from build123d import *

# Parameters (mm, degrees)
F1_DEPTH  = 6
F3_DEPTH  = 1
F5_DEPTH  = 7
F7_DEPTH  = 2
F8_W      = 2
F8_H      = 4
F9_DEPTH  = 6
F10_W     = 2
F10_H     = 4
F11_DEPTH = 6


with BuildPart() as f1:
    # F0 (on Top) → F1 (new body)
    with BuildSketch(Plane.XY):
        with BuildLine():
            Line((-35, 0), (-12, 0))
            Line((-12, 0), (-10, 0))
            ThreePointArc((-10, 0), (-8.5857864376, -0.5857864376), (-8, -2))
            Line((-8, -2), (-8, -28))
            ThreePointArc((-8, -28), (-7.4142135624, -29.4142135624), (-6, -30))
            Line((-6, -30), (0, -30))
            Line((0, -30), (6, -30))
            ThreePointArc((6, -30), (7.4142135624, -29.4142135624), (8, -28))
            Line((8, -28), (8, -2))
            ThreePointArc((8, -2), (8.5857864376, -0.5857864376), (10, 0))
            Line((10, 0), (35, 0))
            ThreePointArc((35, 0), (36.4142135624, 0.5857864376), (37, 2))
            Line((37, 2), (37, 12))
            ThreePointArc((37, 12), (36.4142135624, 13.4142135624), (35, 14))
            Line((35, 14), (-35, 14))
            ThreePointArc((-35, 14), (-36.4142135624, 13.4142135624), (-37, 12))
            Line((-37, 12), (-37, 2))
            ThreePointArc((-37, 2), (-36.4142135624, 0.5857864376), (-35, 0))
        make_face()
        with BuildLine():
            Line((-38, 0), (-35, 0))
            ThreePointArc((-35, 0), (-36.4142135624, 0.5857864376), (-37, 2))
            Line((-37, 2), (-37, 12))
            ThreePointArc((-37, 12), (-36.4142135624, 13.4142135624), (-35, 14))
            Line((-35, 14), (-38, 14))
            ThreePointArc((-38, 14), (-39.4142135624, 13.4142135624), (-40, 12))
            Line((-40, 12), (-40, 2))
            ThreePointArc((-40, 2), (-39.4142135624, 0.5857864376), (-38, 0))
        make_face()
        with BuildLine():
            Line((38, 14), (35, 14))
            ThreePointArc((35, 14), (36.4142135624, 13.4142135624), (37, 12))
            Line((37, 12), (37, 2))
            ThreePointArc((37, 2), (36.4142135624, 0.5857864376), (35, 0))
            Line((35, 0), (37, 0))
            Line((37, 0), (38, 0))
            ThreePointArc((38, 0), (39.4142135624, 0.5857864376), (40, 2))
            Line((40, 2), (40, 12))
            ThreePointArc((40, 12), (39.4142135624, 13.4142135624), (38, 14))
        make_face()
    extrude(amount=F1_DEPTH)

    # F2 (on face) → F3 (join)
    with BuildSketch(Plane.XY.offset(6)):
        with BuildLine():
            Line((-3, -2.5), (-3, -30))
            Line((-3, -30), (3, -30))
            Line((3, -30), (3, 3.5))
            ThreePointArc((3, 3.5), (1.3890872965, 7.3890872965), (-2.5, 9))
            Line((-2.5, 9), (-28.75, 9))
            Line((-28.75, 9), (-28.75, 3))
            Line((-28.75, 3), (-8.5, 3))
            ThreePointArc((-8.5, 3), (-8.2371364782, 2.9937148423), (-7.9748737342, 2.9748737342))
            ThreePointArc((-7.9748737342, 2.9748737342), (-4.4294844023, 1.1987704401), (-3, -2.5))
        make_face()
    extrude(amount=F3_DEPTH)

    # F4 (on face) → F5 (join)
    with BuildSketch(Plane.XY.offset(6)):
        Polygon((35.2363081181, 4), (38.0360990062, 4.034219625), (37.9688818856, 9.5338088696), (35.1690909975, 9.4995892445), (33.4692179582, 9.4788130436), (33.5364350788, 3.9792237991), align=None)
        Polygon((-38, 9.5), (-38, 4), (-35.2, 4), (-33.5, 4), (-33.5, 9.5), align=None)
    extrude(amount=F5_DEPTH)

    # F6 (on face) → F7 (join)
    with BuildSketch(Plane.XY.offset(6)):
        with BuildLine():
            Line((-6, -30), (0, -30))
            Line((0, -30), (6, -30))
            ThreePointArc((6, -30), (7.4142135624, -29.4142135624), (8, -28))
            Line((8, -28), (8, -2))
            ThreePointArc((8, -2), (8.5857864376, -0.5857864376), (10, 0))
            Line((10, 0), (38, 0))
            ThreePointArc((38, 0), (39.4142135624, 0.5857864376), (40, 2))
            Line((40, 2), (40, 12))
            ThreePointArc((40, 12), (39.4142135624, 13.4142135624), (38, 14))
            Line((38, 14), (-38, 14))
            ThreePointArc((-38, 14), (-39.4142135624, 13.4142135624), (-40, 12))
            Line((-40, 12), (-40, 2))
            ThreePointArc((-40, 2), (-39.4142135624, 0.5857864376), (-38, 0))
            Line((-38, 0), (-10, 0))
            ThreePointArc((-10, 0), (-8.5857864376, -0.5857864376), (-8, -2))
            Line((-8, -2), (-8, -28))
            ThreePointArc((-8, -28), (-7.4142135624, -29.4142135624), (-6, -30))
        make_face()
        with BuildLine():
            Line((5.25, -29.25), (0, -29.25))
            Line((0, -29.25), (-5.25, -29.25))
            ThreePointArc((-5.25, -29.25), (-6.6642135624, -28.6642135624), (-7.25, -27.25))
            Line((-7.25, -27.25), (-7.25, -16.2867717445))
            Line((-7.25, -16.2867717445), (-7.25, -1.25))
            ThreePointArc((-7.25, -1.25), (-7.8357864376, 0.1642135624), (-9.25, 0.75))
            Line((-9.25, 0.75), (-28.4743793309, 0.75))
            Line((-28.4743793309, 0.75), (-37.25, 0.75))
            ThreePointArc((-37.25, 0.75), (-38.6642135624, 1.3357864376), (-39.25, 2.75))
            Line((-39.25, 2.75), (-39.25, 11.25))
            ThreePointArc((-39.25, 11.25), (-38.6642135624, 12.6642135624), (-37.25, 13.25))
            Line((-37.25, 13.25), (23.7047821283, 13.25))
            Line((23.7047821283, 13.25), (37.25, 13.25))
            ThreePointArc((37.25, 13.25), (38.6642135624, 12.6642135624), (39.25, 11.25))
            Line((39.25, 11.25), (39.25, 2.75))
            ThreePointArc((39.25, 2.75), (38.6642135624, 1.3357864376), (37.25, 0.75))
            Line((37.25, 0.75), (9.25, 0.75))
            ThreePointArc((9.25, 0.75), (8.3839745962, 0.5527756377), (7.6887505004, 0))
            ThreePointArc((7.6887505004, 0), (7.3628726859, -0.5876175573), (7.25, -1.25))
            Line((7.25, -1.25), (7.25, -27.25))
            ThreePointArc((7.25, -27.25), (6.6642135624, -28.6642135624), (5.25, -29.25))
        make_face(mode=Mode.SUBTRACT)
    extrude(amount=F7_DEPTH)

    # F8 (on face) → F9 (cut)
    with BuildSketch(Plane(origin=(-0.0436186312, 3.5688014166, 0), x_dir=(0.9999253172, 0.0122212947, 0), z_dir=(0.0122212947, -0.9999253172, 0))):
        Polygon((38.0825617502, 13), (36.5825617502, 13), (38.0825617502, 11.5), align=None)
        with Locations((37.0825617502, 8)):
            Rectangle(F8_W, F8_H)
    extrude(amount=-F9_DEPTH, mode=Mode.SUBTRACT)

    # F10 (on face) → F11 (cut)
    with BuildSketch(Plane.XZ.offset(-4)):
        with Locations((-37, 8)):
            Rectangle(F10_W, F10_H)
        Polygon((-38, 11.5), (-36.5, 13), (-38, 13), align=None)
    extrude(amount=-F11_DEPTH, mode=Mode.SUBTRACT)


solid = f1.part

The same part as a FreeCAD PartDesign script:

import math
import FreeCAD as App
import Part
import Sketcher
Q = App.Units.Quantity


def add_polygon(sketch, points):
    """Adds a closed chain of lines whose ends are joined by coincident constraints."""
    first, n = sketch.GeometryCount, len(points)
    for a, b in zip(points, points[1:] + points[:1]):
        sketch.addGeometry(Part.LineSegment(App.Vector(*a, 0), App.Vector(*b, 0)), False)
    for i in range(n):
        sketch.addConstraint(Sketcher.Constraint("Coincident", first + i, 2, first + (i + 1) % n, 1))

doc = App.newDocument("Part")
body = doc.addObject("PartDesign::Body", "Body")

sketch1 = doc.addObject("Sketcher::SketchObject", "Sketch")
body.addObject(sketch1)
sketch1.AttachmentSupport = (doc.XY_Plane, [""])
sketch1.MapMode = "FlatFace"
sketch1.addGeometry([
    Part.ArcOfCircle(Part.Circle(App.Vector(-10, -2, 0), App.Vector(0, 0, 1), 2), math.radians(0), math.radians(90)),
    Part.LineSegment(App.Vector(-8, -2, 0), App.Vector(-8, -28, 0)),
    Part.ArcOfCircle(Part.Circle(App.Vector(-6, -28, 0), App.Vector(0, 0, 1), 2), math.radians(180), math.radians(270)),
    Part.LineSegment(App.Vector(-6, -30, 0), App.Vector(6, -30, 0)),
    Part.ArcOfCircle(Part.Circle(App.Vector(6, -28, 0), App.Vector(0, 0, 1), 2), math.radians(-90), math.radians(0)),
    Part.LineSegment(App.Vector(8, -28, 0), App.Vector(8, -2, 0)),
    Part.ArcOfCircle(Part.Circle(App.Vector(10, -2, 0), App.Vector(0, 0, 1), 2), math.radians(90), math.radians(180)),
    Part.LineSegment(App.Vector(10, 0, 0), App.Vector(38, 0, 0)),
    Part.ArcOfCircle(Part.Circle(App.Vector(38, 2, 0), App.Vector(0, 0, 1), 2), math.radians(-90), math.radians(0)),
    Part.LineSegment(App.Vector(40, 2, 0), App.Vector(40, 12, 0)),
    Part.ArcOfCircle(Part.Circle(App.Vector(38, 12, 0), App.Vector(0, 0, 1), 2), math.radians(0), math.radians(90)),
    Part.LineSegment(App.Vector(38, 14, 0), App.Vector(-38, 14, 0)),
    Part.ArcOfCircle(Part.Circle(App.Vector(-38, 12, 0), App.Vector(0, 0, 1), 2), math.radians(90), math.radians(180)),
    Part.LineSegment(App.Vector(-40, 12, 0), App.Vector(-40, 2, 0)),
    Part.ArcOfCircle(Part.Circle(App.Vector(-38, 2, 0), App.Vector(0, 0, 1), 2), math.radians(180), math.radians(270)),
    Part.LineSegment(App.Vector(-38, 0, 0), App.Vector(-10, 0, 0)),
], False)
sketch1.addConstraint([
    Sketcher.Constraint("Tangent", 0, 1, 1, 1),
    Sketcher.Constraint("Tangent", 1, 2, 2, 1),
    Sketcher.Constraint("Tangent", 2, 2, 3, 1),
    Sketcher.Constraint("Tangent", 3, 2, 4, 1),
    Sketcher.Constraint("Tangent", 4, 2, 5, 1),
    Sketcher.Constraint("Tangent", 5, 2, 6, 2),
    Sketcher.Constraint("Tangent", 6, 1, 7, 1),
    Sketcher.Constraint("Tangent", 7, 2, 8, 1),
    Sketcher.Constraint("Tangent", 8, 2, 9, 1),
    Sketcher.Constraint("Tangent", 9, 2, 10, 1),
    Sketcher.Constraint("Tangent", 10, 2, 11, 1),
    Sketcher.Constraint("Tangent", 11, 2, 12, 1),
    Sketcher.Constraint("Tangent", 12, 2, 13, 1),
    Sketcher.Constraint("Tangent", 13, 2, 14, 1),
    Sketcher.Constraint("Tangent", 14, 2, 15, 1),
    Sketcher.Constraint("Tangent", 15, 2, 0, 2),
    Sketcher.Constraint("Vertical", 1),
    Sketcher.Constraint("Horizontal", 3),
    Sketcher.Constraint("Vertical", 5),
    Sketcher.Constraint("Horizontal", 7),
    Sketcher.Constraint("Vertical", 9),
    Sketcher.Constraint("Horizontal", 11),
    Sketcher.Constraint("Vertical", 13),
    Sketcher.Constraint("Horizontal", 15),
    Sketcher.Constraint("Equal", 0, 2),
    Sketcher.Constraint("Equal", 2, 4),
    Sketcher.Constraint("Equal", 4, 6),
    Sketcher.Constraint("Equal", 6, 8),
    Sketcher.Constraint("Equal", 8, 10),
    Sketcher.Constraint("Equal", 10, 12),
    Sketcher.Constraint("Equal", 12, 14),
    Sketcher.Constraint("Symmetric", 7, 2, 14, 2, -1, 1),
    Sketcher.Constraint("Symmetric", 0, 3, 6, 3, -2),
    Sketcher.Constraint("Radius", 0, Q("2 mm")),
    Sketcher.Constraint("DistanceX", 3, 1, 3, 2, Q("12 mm")),
    Sketcher.Constraint("DistanceX", 7, 1, 7, 2, Q("28 mm")),
    Sketcher.Constraint("DistanceY", 1, 2, 1, 1, Q("26 mm")),
    Sketcher.Constraint("DistanceY", 9, 1, 9, 2, Q("10 mm")),
])
pad1 = doc.addObject("PartDesign::Pad", "Pad")
body.addObject(pad1)
pad1.Profile = sketch1
pad1.Length = 6

sketch2 = doc.addObject("Sketcher::SketchObject", "Sketch001")
body.addObject(sketch2)
sketch2.AttachmentSupport = (doc.XY_Plane, [""])
sketch2.MapMode = "FlatFace"
sketch2.AttachmentOffset = App.Placement(App.Vector(0, 0, 6), App.Rotation())
sketch2.addGeometry([
    Part.LineSegment(App.Vector(-3, -2.5, 0), App.Vector(-3, -30, 0)),
    Part.LineSegment(App.Vector(-3, -30, 0), App.Vector(3, -30, 0)),
    Part.LineSegment(App.Vector(3, -30, 0), App.Vector(3, 3.5, 0)),
    Part.ArcOfCircle(Part.Circle(App.Vector(-2.5, 3.5, 0), App.Vector(0, 0, 1), 5.5), math.radians(0), math.radians(90)),
    Part.LineSegment(App.Vector(-2.5, 9, 0), App.Vector(-28.75, 9, 0)),
    Part.LineSegment(App.Vector(-28.75, 9, 0), App.Vector(-28.75, 3, 0)),
    Part.LineSegment(App.Vector(-28.75, 3, 0), App.Vector(-8.5, 3, 0)),
    Part.ArcOfCircle(Part.Circle(App.Vector(-8.5, -2.5, 0), App.Vector(0, 0, 1), 5.5), math.radians(84.521196), math.radians(90)),
    Part.ArcOfCircle(Part.Circle(App.Vector(-8.5, -2.5, 0), App.Vector(0, 0, 1), 5.5), math.radians(0), math.radians(84.521196)),
], False)
sketch2.addConstraint([
    Sketcher.Constraint("Coincident", 0, 2, 1, 1),
    Sketcher.Constraint("Coincident", 1, 2, 2, 1),
    Sketcher.Constraint("Tangent", 2, 2, 3, 1),
    Sketcher.Constraint("Tangent", 3, 2, 4, 1),
    Sketcher.Constraint("Coincident", 4, 2, 5, 1),
    Sketcher.Constraint("Coincident", 5, 2, 6, 1),
    Sketcher.Constraint("Tangent", 6, 2, 7, 2),
    Sketcher.Constraint("Tangent", 7, 1, 8, 2),
    Sketcher.Constraint("Tangent", 8, 1, 0, 1),
    Sketcher.Constraint("Vertical", 0),
    Sketcher.Constraint("Horizontal", 1),
    Sketcher.Constraint("Vertical", 2),
    Sketcher.Constraint("Horizontal", 4),
    Sketcher.Constraint("Vertical", 5),
    Sketcher.Constraint("Horizontal", 6),
    Sketcher.Constraint("Equal", 3, 7),
    Sketcher.Constraint("Equal", 7, 8),
    Sketcher.Constraint("Equal", 1, 5),
    Sketcher.Constraint("Radius", 3, Q("5.5 mm")),
    Sketcher.Constraint("DistanceX", 1, 1, 1, 2, Q("6 mm")),
    Sketcher.Constraint("DistanceY", 0, 2, 0, 1, Q("27.5 mm")),
    Sketcher.Constraint("DistanceX", 0, 2, -1, 1, Q("3 mm")),
    Sketcher.Constraint("DistanceY", 0, 2, -1, 1, Q("30 mm")),
    Sketcher.Constraint("DistanceX", 4, 2, 4, 1, Q("26.25 mm")),
    Sketcher.Constraint("DistanceX", 7, 1, -1, 1, Q("7.974874 mm")),
])
pad2 = doc.addObject("PartDesign::Pad", "Pad001")
body.addObject(pad2)
pad2.Profile = sketch2
pad2.Length = 1

sketch3 = doc.addObject("Sketcher::SketchObject", "Sketch002")
body.addObject(sketch3)
sketch3.AttachmentSupport = (doc.XY_Plane, [""])
sketch3.MapMode = "FlatFace"
sketch3.AttachmentOffset = App.Placement(App.Vector(0, 0, 6), App.Rotation())
add_polygon(sketch3, [(35.236308, 4), (38.036099, 4.03422), (37.968882, 9.533809), (35.169091, 9.499589), (33.469218, 9.478813), (33.536435, 3.979224)])
add_polygon(sketch3, [(-38, 9.5), (-38, 4), (-33.5, 4), (-33.5, 9.5)])
sketch3.addConstraint([
    Sketcher.Constraint("Vertical", 6),
    Sketcher.Constraint("Horizontal", 7),
    Sketcher.Constraint("Vertical", 8),
    Sketcher.Constraint("Horizontal", 9),
    Sketcher.Constraint("Perpendicular", 0, 1),
    Sketcher.Constraint("Perpendicular", 1, 2),
    Sketcher.Constraint("Parallel", 2, 3),
    Sketcher.Constraint("Perpendicular", 3, 4),
    Sketcher.Constraint("Perpendicular", 4, 5),
    Sketcher.Constraint("Horizontal", 5, 2, 6, 2),
    Sketcher.Constraint("Equal", 0, 2),
    Sketcher.Constraint("DistanceX", 7, 1, 7, 2, Q("4.5 mm")),
    Sketcher.Constraint("DistanceY", 6, 2, 6, 1, Q("5.5 mm")),
    Sketcher.Constraint("DistanceY", -1, 1, 5, 2, Q("4 mm")),
    Sketcher.Constraint("DistanceX", 6, 2, -1, 1, Q("38 mm")),
    Sketcher.Constraint("Distance", 0, Q("2.8 mm")),
    Sketcher.Constraint("Distance", 1, Q("5.5 mm")),
    Sketcher.Constraint("Distance", 3, Q("1.7 mm")),
    Sketcher.Constraint("DistanceX", -1, 1, 0, 2, Q("38.036099 mm")),
    Sketcher.Constraint("DistanceY", -1, 1, 0, 2, Q("4.03422 mm")),
])
pad3 = doc.addObject("PartDesign::Pad", "Pad002")
body.addObject(pad3)
pad3.Profile = sketch3
pad3.Length = 7

sketch4 = doc.addObject("Sketcher::SketchObject", "Sketch003")
body.addObject(sketch4)
sketch4.AttachmentSupport = (doc.XY_Plane, [""])
sketch4.MapMode = "FlatFace"
sketch4.AttachmentOffset = App.Placement(App.Vector(0, 0, 6), App.Rotation())
sketch4.addGeometry([
    Part.LineSegment(App.Vector(-6, -30, 0), App.Vector(6, -30, 0)),
    Part.ArcOfCircle(Part.Circle(App.Vector(6, -28, 0), App.Vector(0, 0, 1), 2), math.radians(-90), math.radians(0)),
    Part.LineSegment(App.Vector(8, -28, 0), App.Vector(8, -2, 0)),
    Part.ArcOfCircle(Part.Circle(App.Vector(10, -2, 0), App.Vector(0, 0, 1), 2), math.radians(90), math.radians(180)),
    Part.LineSegment(App.Vector(10, 0, 0), App.Vector(38, 0, 0)),
    Part.ArcOfCircle(Part.Circle(App.Vector(38, 2, 0), App.Vector(0, 0, 1), 2), math.radians(-90), math.radians(0)),
    Part.LineSegment(App.Vector(40, 2, 0), App.Vector(40, 12, 0)),
    Part.ArcOfCircle(Part.Circle(App.Vector(38, 12, 0), App.Vector(0, 0, 1), 2), math.radians(0), math.radians(90)),
    Part.LineSegment(App.Vector(38, 14, 0), App.Vector(-38, 14, 0)),
    Part.ArcOfCircle(Part.Circle(App.Vector(-38, 12, 0), App.Vector(0, 0, 1), 2), math.radians(90), math.radians(180)),
    Part.LineSegment(App.Vector(-40, 12, 0), App.Vector(-40, 2, 0)),
    Part.ArcOfCircle(Part.Circle(App.Vector(-38, 2, 0), App.Vector(0, 0, 1), 2), math.radians(180), math.radians(270)),
    Part.LineSegment(App.Vector(-38, 0, 0), App.Vector(-10, 0, 0)),
    Part.ArcOfCircle(Part.Circle(App.Vector(-10, -2, 0), App.Vector(0, 0, 1), 2), math.radians(0), math.radians(90)),
    Part.LineSegment(App.Vector(-8, -2, 0), App.Vector(-8, -28, 0)),
    Part.ArcOfCircle(Part.Circle(App.Vector(-6, -28, 0), App.Vector(0, 0, 1), 2), math.radians(180), math.radians(270)),
    Part.ArcOfCircle(Part.Circle(App.Vector(5.25, -27.25, 0), App.Vector(0, 0, 1), 2), math.radians(-90), math.radians(0)),
    Part.LineSegment(App.Vector(5.25, -29.25, 0), App.Vector(-5.25, -29.25, 0)),
    Part.ArcOfCircle(Part.Circle(App.Vector(-5.25, -27.25, 0), App.Vector(0, 0, 1), 2), math.radians(180), math.radians(270)),
    Part.LineSegment(App.Vector(-7.25, -27.25, 0), App.Vector(-7.25, -1.25, 0)),
    Part.ArcOfCircle(Part.Circle(App.Vector(-9.25, -1.25, 0), App.Vector(0, 0, 1), 2), math.radians(0), math.radians(90)),
    Part.LineSegment(App.Vector(-9.25, 0.75, 0), App.Vector(-37.25, 0.75, 0)),
    Part.ArcOfCircle(Part.Circle(App.Vector(-37.25, 2.75, 0), App.Vector(0, 0, 1), 2), math.radians(180), math.radians(270)),
    Part.LineSegment(App.Vector(-39.25, 2.75, 0), App.Vector(-39.25, 11.25, 0)),
    Part.ArcOfCircle(Part.Circle(App.Vector(-37.25, 11.25, 0), App.Vector(0, 0, 1), 2), math.radians(90), math.radians(180)),
    Part.LineSegment(App.Vector(-37.25, 13.25, 0), App.Vector(37.25, 13.25, 0)),
    Part.ArcOfCircle(Part.Circle(App.Vector(37.25, 11.25, 0), App.Vector(0, 0, 1), 2), math.radians(0), math.radians(90)),
    Part.LineSegment(App.Vector(39.25, 11.25, 0), App.Vector(39.25, 2.75, 0)),
    Part.ArcOfCircle(Part.Circle(App.Vector(37.25, 2.75, 0), App.Vector(0, 0, 1), 2), math.radians(-90), math.radians(0)),
    Part.LineSegment(App.Vector(37.25, 0.75, 0), App.Vector(9.25, 0.75, 0)),
    Part.ArcOfCircle(Part.Circle(App.Vector(9.25, -1.25, 0), App.Vector(0, 0, 1), 2), math.radians(90), math.radians(141.317813)),
    Part.ArcOfCircle(Part.Circle(App.Vector(9.25, -1.25, 0), App.Vector(0, 0, 1), 2), math.radians(141.317813), math.radians(180)),
    Part.LineSegment(App.Vector(7.25, -1.25, 0), App.Vector(7.25, -27.25, 0)),
], False)
sketch4.addConstraint([
    Sketcher.Constraint("Tangent", 0, 2, 1, 1),
    Sketcher.Constraint("Tangent", 1, 2, 2, 1),
    Sketcher.Constraint("Tangent", 2, 2, 3, 2),
    Sketcher.Constraint("Tangent", 3, 1, 4, 1),
    Sketcher.Constraint("Tangent", 4, 2, 5, 1),
    Sketcher.Constraint("Tangent", 5, 2, 6, 1),
    Sketcher.Constraint("Tangent", 6, 2, 7, 1),
    Sketcher.Constraint("Tangent", 7, 2, 8, 1),
    Sketcher.Constraint("Tangent", 8, 2, 9, 1),
    Sketcher.Constraint("Tangent", 9, 2, 10, 1),
    Sketcher.Constraint("Tangent", 10, 2, 11, 1),
    Sketcher.Constraint("Tangent", 11, 2, 12, 1),
    Sketcher.Constraint("Tangent", 12, 2, 13, 2),
    Sketcher.Constraint("Tangent", 13, 1, 14, 1),
    Sketcher.Constraint("Tangent", 14, 2, 15, 1),
    Sketcher.Constraint("Tangent", 15, 2, 0, 1),
    Sketcher.Constraint("Tangent", 16, 1, 17, 1),
    Sketcher.Constraint("Tangent", 17, 2, 18, 2),
    Sketcher.Constraint("Tangent", 18, 1, 19, 1),
    Sketcher.Constraint("Tangent", 19, 2, 20, 1),
    Sketcher.Constraint("Tangent", 20, 2, 21, 1),
    Sketcher.Constraint("Tangent", 21, 2, 22, 2),
    Sketcher.Constraint("Tangent", 22, 1, 23, 1),
    Sketcher.Constraint("Tangent", 23, 2, 24, 2),
    Sketcher.Constraint("Tangent", 24, 1, 25, 1),
    Sketcher.Constraint("Tangent", 25, 2, 26, 2),
    Sketcher.Constraint("Tangent", 26, 1, 27, 1),
    Sketcher.Constraint("Tangent", 27, 2, 28, 2),
    Sketcher.Constraint("Tangent", 28, 1, 29, 1),
    Sketcher.Constraint("Tangent", 29, 2, 30, 1),
    Sketcher.Constraint("Tangent", 30, 2, 31, 1),
    Sketcher.Constraint("Tangent", 31, 2, 32, 1),
    Sketcher.Constraint("Tangent", 32, 2, 16, 2),
    Sketcher.Constraint("Horizontal", 0),
    Sketcher.Constraint("Vertical", 2),
    Sketcher.Constraint("Horizontal", 4),
    Sketcher.Constraint("Vertical", 6),
    Sketcher.Constraint("Horizontal", 8),
    Sketcher.Constraint("Vertical", 10),
    Sketcher.Constraint("Horizontal", 12),
    Sketcher.Constraint("Vertical", 14),
    Sketcher.Constraint("Horizontal", 17),
    Sketcher.Constraint("Vertical", 19),
    Sketcher.Constraint("Horizontal", 21),
    Sketcher.Constraint("Vertical", 23),
    Sketcher.Constraint("Horizontal", 25),
    Sketcher.Constraint("Vertical", 27),
    Sketcher.Constraint("Horizontal", 29),
    Sketcher.Constraint("Vertical", 32),
    Sketcher.Constraint("Equal", 1, 3),
    Sketcher.Constraint("Equal", 3, 5),
    Sketcher.Constraint("Equal", 5, 7),
    Sketcher.Constraint("Equal", 7, 9),
    Sketcher.Constraint("Equal", 9, 11),
    Sketcher.Constraint("Equal", 11, 13),
    Sketcher.Constraint("Equal", 13, 15),
    Sketcher.Constraint("Equal", 15, 16),
    Sketcher.Constraint("Equal", 16, 18),
    Sketcher.Constraint("Equal", 18, 20),
    Sketcher.Constraint("Equal", 20, 22),
    Sketcher.Constraint("Equal", 22, 24),
    Sketcher.Constraint("Equal", 24, 26),
    Sketcher.Constraint("Equal", 26, 28),
    Sketcher.Constraint("Equal", 28, 30),
    Sketcher.Constraint("Equal", 30, 31),
    Sketcher.Constraint("Symmetric", 4, 2, 11, 2, -1, 1),
    Sketcher.Constraint("Symmetric", 3, 3, 13, 3, -2),
    Sketcher.Constraint("Symmetric", 22, 3, 28, 3, -2),
    Sketcher.Constraint("PointOnObject", 30, 2, -1),
    Sketcher.Constraint("Equal", 12, 21),
    Sketcher.Constraint("Equal", 21, 29),
    Sketcher.Constraint("Equal", 14, 19),
    Sketcher.Constraint("Radius", 1, Q("2 mm")),
    Sketcher.Constraint("DistanceX", 0, 1, 0, 2, Q("12 mm")),
    Sketcher.Constraint("DistanceX", 4, 1, 4, 2, Q("28 mm")),
    Sketcher.Constraint("DistanceY", 2, 1, 2, 2, Q("26 mm")),
    Sketcher.Constraint("DistanceY", 6, 1, 6, 2, Q("10 mm")),
    Sketcher.Constraint("DistanceX", 17, 2, 17, 1, Q("10.5 mm")),
    Sketcher.Constraint("DistanceY", 23, 1, 23, 2, Q("8.5 mm")),
    Sketcher.Constraint("DistanceY", 16, 3, -1, 1, Q("27.25 mm")),
])
pad4 = doc.addObject("PartDesign::Pad", "Pad003")
body.addObject(pad4)
pad4.Profile = sketch4
pad4.Length = 2

sketch5 = doc.addObject("Sketcher::SketchObject", "Sketch004")
body.addObject(sketch5)
sketch5.Placement = App.Placement(App.Vector(-0.043619, 3.568801, 0), App.Rotation(App.Vector(0.999925317, 0.012221295, 0), App.Vector(0, 0, 1), App.Vector(0.012221295, -0.999925317, 0), "ZXY"))
add_polygon(sketch5, [(38.082562, 13), (36.582562, 13), (38.082562, 11.5)])
add_polygon(sketch5, [(36.082562, 10), (36.082562, 6), (38.082562, 6), (38.082562, 10)])
sketch5.addConstraint([
    Sketcher.Constraint("Horizontal", 0),
    Sketcher.Constraint("Vertical", 2),
    Sketcher.Constraint("Vertical", 3),
    Sketcher.Constraint("Horizontal", 4),
    Sketcher.Constraint("Vertical", 5),
    Sketcher.Constraint("Horizontal", 6),
    Sketcher.Constraint("Vertical", 2, 2, 4, 2),
    Sketcher.Constraint("Equal", 0, 2),
    Sketcher.Constraint("DistanceX", 4, 1, 4, 2, Q("2 mm")),
    Sketcher.Constraint("DistanceY", 3, 2, 3, 1, Q("4 mm")),
    Sketcher.Constraint("DistanceX", 0, 2, 0, 1, Q("1.5 mm")),
    Sketcher.Constraint("DistanceY", -1, 1, 0, 2, Q("13 mm")),
    Sketcher.Constraint("DistanceY", -1, 1, 3, 2, Q("6 mm")),
    Sketcher.Constraint("DistanceX", -1, 1, 0, 2, Q("36.582562 mm")),
])
pocket1 = doc.addObject("PartDesign::Pocket", "Pocket")
body.addObject(pocket1)
pocket1.Profile = sketch5
pocket1.Length = 6

sketch6 = doc.addObject("Sketcher::SketchObject", "Sketch005")
body.addObject(sketch6)
sketch6.AttachmentSupport = (doc.XZ_Plane, [""])
sketch6.MapMode = "FlatFace"
sketch6.AttachmentOffset = App.Placement(App.Vector(0, 0, -4), App.Rotation())
add_polygon(sketch6, [(-38, 10), (-38, 6), (-36, 6), (-36, 10)])
add_polygon(sketch6, [(-38, 11.5), (-36.5, 13), (-38, 13)])
sketch6.addConstraint([
    Sketcher.Constraint("Vertical", 0),
    Sketcher.Constraint("Horizontal", 1),
    Sketcher.Constraint("Vertical", 2),
    Sketcher.Constraint("Horizontal", 3),
    Sketcher.Constraint("Horizontal", 5),
    Sketcher.Constraint("Vertical", 6),
    Sketcher.Constraint("Vertical", 3, 2, 5, 2),
    Sketcher.Constraint("Equal", 5, 6),
    Sketcher.Constraint("DistanceX", 1, 1, 1, 2, Q("2 mm")),
    Sketcher.Constraint("DistanceY", 0, 2, 0, 1, Q("4 mm")),
    Sketcher.Constraint("DistanceX", 5, 2, 5, 1, Q("1.5 mm")),
    Sketcher.Constraint("DistanceX", 0, 2, -1, 1, Q("38 mm")),
    Sketcher.Constraint("DistanceY", -1, 1, 0, 2, Q("6 mm")),
    Sketcher.Constraint("DistanceY", -1, 1, 4, 2, Q("13 mm")),
])
pocket2 = doc.addObject("PartDesign::Pocket", "Pocket001")
body.addObject(pocket2)
pocket2.Profile = sketch6
pocket2.Length = 6

doc.recompute()
